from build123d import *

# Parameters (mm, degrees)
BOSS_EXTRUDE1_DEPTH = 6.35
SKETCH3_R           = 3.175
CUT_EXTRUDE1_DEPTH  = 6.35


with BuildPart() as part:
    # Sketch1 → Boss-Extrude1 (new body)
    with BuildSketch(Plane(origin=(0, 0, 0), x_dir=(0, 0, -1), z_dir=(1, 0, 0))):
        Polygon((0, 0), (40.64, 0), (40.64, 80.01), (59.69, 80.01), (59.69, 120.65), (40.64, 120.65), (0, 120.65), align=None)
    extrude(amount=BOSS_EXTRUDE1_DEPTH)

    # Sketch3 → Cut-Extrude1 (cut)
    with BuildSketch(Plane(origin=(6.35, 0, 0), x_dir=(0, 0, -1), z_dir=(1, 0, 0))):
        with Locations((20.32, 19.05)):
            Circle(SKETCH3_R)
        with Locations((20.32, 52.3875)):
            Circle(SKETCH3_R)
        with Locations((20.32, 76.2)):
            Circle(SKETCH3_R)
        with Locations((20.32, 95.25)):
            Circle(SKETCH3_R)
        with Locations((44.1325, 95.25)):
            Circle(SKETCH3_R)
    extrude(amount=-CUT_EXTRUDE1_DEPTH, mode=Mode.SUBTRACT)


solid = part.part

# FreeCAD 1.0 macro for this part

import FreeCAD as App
import Part
import Sketcher
Q = App.Units.Quantity


def add_polygon(sketch, points):
    """Adds a closed chain of lines whose ends are joined by coincident constraints."""
    first, n = sketch.GeometryCount, len(points)
    for a, b in zip(points, points[1:] + points[:1]):
        sketch.addGeometry(Part.LineSegment(App.Vector(*a, 0), App.Vector(*b, 0)), False)
    for i in range(n):
        sketch.addConstraint(Sketcher.Constraint("Coincident", first + i, 2, first + (i + 1) % n, 1))

doc = App.newDocument("Part")
body = doc.addObject("PartDesign::Body", "Body")

# Sketch on YZ plane
sketch1 = body.newObject("Sketcher::SketchObject", "Sketch")
sketch1.AttachmentSupport = (doc.getObject("YZ_Plane"), [""])
sketch1.MapMode = "FlatFace"
add_polygon(sketch1, [(0, 0), (0, -41), (80, -41), (80, -60), (121, -60), (121, 0)])  # lines 0-5
sketch1.addConstraint(Sketcher.Constraint("Vertical", 0))
sketch1.addConstraint(Sketcher.Constraint("Horizontal", 1))
sketch1.addConstraint(Sketcher.Constraint("Vertical", 2))
sketch1.addConstraint(Sketcher.Constraint("Horizontal", 3))
sketch1.addConstraint(Sketcher.Constraint("Vertical", 4))
sketch1.addConstraint(Sketcher.Constraint("Horizontal", 5))
sketch1.addConstraint(Sketcher.Constraint("Coincident", 5, 2, -1, 1))
sketch1.addConstraint(Sketcher.Constraint("Equal", 3, 0))
sketch1.addConstraint(Sketcher.Constraint("DistanceX", 3, 1, 3, 2, Q("1.6 in")))
sketch1.addConstraint(Sketcher.Constraint("DistanceX", 1, 1, 1, 2, Q("3.15 in")))
sketch1.addConstraint(Sketcher.Constraint("DistanceY", 2, 2, 2, 1, Q("0.75 in")))
pad1 = body.newObject("PartDesign::Pad", "Pad")
pad1.Profile = sketch1
pad1.Length = Q("0.25 in")

# Sketch on YZ plane
sketch2 = body.newObject("Sketcher::SketchObject", "Sketch001")
sketch2.AttachmentSupport = (doc.getObject("YZ_Plane"), [""])
sketch2.MapMode = "FlatFace"
sketch2.AttachmentOffset = App.Placement(App.Vector(0, 0, 0.25 * 25.4), App.Rotation())
sketch2.addGeometry(Part.Circle(App.Vector(19.1, -20.3, 0), App.Vector(0, 0, 1), 3.2), False)
sketch2.addGeometry(Part.Circle(App.Vector(52.4, -20.3, 0), App.Vector(0, 0, 1), 3.2), False)
sketch2.addGeometry(Part.Circle(App.Vector(76.2, -20.3, 0), App.Vector(0, 0, 1), 3.2), False)
sketch2.addGeometry(Part.Circle(App.Vector(95.2, -20.3, 0), App.Vector(0, 0, 1), 3.2), False)
sketch2.addGeometry(Part.Circle(App.Vector(95.2, -44.1, 0), App.Vector(0, 0, 1), 3.2), False)
sketch2.addConstraint(Sketcher.Constraint("Equal", 0, 1))
sketch2.addConstraint(Sketcher.Constraint("Equal", 1, 2))
sketch2.addConstraint(Sketcher.Constraint("Equal", 2, 3))
sketch2.addConstraint(Sketcher.Constraint("Equal", 3, 4))
sketch2.addConstraint(Sketcher.Constraint("Horizontal", 0, 3, 1, 3))
sketch2.addConstraint(Sketcher.Constraint("Horizontal", 1, 3, 2, 3))
sketch2.addConstraint(Sketcher.Constraint("Horizontal", 2, 3, 3, 3))
sketch2.addConstraint(Sketcher.Constraint("Vertical", 3, 3, 4, 3))
sketch2.addConstraint(Sketcher.Constraint("Diameter", 0, Q("0.25 in")))
sketch2.addConstraint(Sketcher.Constraint("DistanceX", -1, 1, 2, 3, Q("3 in")))
sketch2.addConstraint(Sketcher.Constraint("DistanceX", 0, 3, 3, 3, Q("3 in")))
sketch2.addConstraint(Sketcher.Constraint("DistanceY", 0, 3, -1, 1, Q("0.8 in")))
sketch2.addConstraint(Sketcher.Constraint("DistanceX", -1, 1, 0, 3, Q("0.75 in")))
sketch2.addConstraint(Sketcher.Constraint("DistanceX", -1, 1, 1, 3, Q("2.0625 in")))
sketch2.addConstraint(Sketcher.Constraint("DistanceY", 4, 3, 3, 3, Q("0.9375 in")))
pocket1 = body.newObject("PartDesign::Pocket", "Pocket")
pocket1.Profile = sketch2
pocket1.Length = Q("0.25 in")

doc.recompute()
